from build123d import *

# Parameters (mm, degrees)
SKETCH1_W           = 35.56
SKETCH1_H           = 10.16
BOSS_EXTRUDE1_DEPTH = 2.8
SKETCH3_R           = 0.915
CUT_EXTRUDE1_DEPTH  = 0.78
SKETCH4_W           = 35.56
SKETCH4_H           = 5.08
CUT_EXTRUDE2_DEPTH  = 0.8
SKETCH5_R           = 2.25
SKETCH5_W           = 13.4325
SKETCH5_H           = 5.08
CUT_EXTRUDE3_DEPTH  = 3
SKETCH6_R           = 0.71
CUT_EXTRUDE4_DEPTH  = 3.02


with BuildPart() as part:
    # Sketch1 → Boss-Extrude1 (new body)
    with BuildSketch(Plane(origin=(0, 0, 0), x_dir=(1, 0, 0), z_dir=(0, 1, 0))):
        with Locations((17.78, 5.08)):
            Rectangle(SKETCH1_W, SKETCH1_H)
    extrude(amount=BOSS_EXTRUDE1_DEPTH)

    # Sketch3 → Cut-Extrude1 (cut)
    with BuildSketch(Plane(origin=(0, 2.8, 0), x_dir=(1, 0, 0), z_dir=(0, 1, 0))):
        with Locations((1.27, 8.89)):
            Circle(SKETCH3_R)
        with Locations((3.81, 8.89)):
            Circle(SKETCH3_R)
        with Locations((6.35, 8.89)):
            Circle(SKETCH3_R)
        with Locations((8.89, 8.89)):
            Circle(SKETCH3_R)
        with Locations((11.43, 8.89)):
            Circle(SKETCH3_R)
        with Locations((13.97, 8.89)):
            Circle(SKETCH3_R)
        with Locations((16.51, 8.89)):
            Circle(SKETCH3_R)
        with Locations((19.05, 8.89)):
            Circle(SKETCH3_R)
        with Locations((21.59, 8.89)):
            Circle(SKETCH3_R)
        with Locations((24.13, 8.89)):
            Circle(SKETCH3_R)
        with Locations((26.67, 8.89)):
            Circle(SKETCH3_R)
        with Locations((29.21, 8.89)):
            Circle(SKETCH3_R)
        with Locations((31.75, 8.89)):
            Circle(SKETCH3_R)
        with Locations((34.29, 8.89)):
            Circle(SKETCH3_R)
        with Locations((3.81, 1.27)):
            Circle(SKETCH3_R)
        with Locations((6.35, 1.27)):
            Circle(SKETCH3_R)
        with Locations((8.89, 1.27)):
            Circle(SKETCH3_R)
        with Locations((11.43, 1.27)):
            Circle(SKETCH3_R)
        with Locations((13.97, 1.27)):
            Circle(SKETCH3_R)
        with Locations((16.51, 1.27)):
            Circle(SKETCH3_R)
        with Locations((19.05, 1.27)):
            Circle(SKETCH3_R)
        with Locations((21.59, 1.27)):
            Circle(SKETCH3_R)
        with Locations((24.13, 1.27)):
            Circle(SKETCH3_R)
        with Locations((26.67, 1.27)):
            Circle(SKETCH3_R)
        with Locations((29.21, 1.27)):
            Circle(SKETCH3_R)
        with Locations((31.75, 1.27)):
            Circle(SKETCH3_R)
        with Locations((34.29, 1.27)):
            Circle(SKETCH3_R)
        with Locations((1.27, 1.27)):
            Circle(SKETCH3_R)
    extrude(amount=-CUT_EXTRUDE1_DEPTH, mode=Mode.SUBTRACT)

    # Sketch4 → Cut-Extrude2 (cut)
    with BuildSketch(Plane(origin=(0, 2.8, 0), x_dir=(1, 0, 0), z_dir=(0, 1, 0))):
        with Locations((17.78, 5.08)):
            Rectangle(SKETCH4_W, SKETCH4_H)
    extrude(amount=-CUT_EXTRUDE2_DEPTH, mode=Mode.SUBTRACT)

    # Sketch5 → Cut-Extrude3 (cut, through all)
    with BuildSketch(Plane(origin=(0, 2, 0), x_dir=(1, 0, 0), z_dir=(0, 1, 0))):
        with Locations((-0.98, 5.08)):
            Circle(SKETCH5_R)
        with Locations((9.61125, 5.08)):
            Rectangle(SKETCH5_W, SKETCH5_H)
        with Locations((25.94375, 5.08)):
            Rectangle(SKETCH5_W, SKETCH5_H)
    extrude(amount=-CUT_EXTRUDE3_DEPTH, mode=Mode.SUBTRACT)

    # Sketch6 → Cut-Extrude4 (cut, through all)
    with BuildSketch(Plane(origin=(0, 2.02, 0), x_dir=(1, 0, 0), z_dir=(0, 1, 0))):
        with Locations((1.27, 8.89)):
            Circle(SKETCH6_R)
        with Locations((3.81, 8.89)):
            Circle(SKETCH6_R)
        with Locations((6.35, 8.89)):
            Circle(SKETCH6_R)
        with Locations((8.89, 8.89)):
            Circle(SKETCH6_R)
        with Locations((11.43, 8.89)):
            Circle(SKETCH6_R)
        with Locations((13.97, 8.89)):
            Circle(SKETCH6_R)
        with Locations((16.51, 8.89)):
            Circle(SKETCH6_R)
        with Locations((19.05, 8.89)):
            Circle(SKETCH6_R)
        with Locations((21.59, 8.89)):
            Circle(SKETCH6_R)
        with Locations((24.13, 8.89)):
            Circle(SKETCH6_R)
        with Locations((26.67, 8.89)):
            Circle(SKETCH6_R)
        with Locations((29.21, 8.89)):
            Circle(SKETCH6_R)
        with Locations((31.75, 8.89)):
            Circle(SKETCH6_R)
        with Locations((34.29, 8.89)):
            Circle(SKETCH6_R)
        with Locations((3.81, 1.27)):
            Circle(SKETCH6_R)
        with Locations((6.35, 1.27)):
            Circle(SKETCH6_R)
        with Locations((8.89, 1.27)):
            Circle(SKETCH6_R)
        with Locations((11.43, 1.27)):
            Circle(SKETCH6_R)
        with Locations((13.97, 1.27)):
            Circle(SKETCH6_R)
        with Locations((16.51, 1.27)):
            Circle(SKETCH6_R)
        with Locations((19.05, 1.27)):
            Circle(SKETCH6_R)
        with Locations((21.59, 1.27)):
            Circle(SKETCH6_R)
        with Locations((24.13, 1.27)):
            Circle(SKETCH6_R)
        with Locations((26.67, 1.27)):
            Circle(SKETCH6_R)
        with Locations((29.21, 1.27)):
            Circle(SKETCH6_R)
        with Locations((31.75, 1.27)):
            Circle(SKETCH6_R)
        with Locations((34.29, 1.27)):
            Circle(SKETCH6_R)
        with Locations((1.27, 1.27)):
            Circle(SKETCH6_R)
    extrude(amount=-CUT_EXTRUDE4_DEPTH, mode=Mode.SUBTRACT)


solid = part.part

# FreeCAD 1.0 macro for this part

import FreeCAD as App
import Part
import Sketcher
from FreeCAD import Vector


def add_polygon(sketch, points):
    """Adds a closed chain of lines whose ends are joined by coincident constraints."""
    first, n = sketch.GeometryCount, len(points)
    for a, b in zip(points, points[1:] + points[:1]):
        sketch.addGeometry(Part.LineSegment(App.Vector(*a, 0), App.Vector(*b, 0)), False)
    for i in range(n):
        sketch.addConstraint(Sketcher.Constraint("Coincident", first + i, 2, first + (i + 1) % n, 1))

doc = App.newDocument("Part")
body = doc.addObject("PartDesign::Body", "Body")

# Sketch on XZ plane
sketch1 = body.newObject("Sketcher::SketchObject", "Sketch")
sketch1.AttachmentSupport = (doc.getObject("XZ_Plane"), [""])
sketch1.MapMode = "FlatFace"
add_polygon(sketch1, [(0, -10), (0, 0), (36, 0), (36, -10)])  # lines 0-3
sketch1.addConstraint([
    Sketcher.Constraint("Vertical", 0),
    Sketcher.Constraint("Horizontal", 1),
    Sketcher.Constraint("Vertical", 2),
    Sketcher.Constraint("Horizontal", 3),
    Sketcher.Constraint("Coincident", 0, 2, -1, 1),
    Sketcher.Constraint("DistanceX", 1, 1, 1, 2, 35.56),
    Sketcher.Constraint("DistanceY", 0, 1, 0, 2, 10.16),
])
pad1 = body.newObject("PartDesign::Pad", "Pad")
pad1.Profile = sketch1
pad1.Length = 2.8
pad1.Reversed = True

# Sketch on XZ plane
sketch2 = body.newObject("Sketcher::SketchObject", "Sketch001")
sketch2.AttachmentSupport = (doc.getObject("XZ_Plane"), [""])
sketch2.MapMode = "FlatFace"
sketch2.AttachmentOffset = App.Placement(Vector(0, 0, -2.8), App.Rotation())
sketch2.addGeometry([
    Part.Circle(Vector(1.3, -8.9, 0), Vector(0, 0, 1), 0.9),  # 0
    Part.Circle(Vector(3.8, -8.9, 0), Vector(0, 0, 1), 0.9),  # 1
    Part.Circle(Vector(6.3, -8.9, 0), Vector(0, 0, 1), 0.9),  # 2
    Part.Circle(Vector(8.9, -8.9, 0), Vector(0, 0, 1), 0.9),  # 3
    Part.Circle(Vector(11.4, -8.9, 0), Vector(0, 0, 1), 0.9),  # 4
    Part.Circle(Vector(14, -8.9, 0), Vector(0, 0, 1), 0.9),  # 5
    Part.Circle(Vector(16.5, -8.9, 0), Vector(0, 0, 1), 0.9),  # 6
    Part.Circle(Vector(19.1, -8.9, 0), Vector(0, 0, 1), 0.9),  # 7
    Part.Circle(Vector(21.6, -8.9, 0), Vector(0, 0, 1), 0.9),  # 8
    Part.Circle(Vector(24.1, -8.9, 0), Vector(0, 0, 1), 0.9),  # 9
    Part.Circle(Vector(26.7, -8.9, 0), Vector(0, 0, 1), 0.9),  # 10
    Part.Circle(Vector(29.2, -8.9, 0), Vector(0, 0, 1), 0.9),  # 11
    Part.Circle(Vector(31.8, -8.9, 0), Vector(0, 0, 1), 0.9),  # 12
    Part.Circle(Vector(34.3, -8.9, 0), Vector(0, 0, 1), 0.9),  # 13
    Part.Circle(Vector(3.8, -1.3, 0), Vector(0, 0, 1), 0.9),  # 14
    Part.Circle(Vector(6.3, -1.3, 0), Vector(0, 0, 1), 0.9),  # 15
    Part.Circle(Vector(8.9, -1.3, 0), Vector(0, 0, 1), 0.9),  # 16
    Part.Circle(Vector(11.4, -1.3, 0), Vector(0, 0, 1), 0.9),  # 17
    Part.Circle(Vector(14, -1.3, 0), Vector(0, 0, 1), 0.9),  # 18
    Part.Circle(Vector(16.5, -1.3, 0), Vector(0, 0, 1), 0.9),  # 19
    Part.Circle(Vector(19.1, -1.3, 0), Vector(0, 0, 1), 0.9),  # 20
    Part.Circle(Vector(21.6, -1.3, 0), Vector(0, 0, 1), 0.9),  # 21
    Part.Circle(Vector(24.1, -1.3, 0), Vector(0, 0, 1), 0.9),  # 22
    Part.Circle(Vector(26.7, -1.3, 0), Vector(0, 0, 1), 0.9),  # 23
    Part.Circle(Vector(29.2, -1.3, 0), Vector(0, 0, 1), 0.9),  # 24
    Part.Circle(Vector(31.8, -1.3, 0), Vector(0, 0, 1), 0.9),  # 25
    Part.Circle(Vector(34.3, -1.3, 0), Vector(0, 0, 1), 0.9),  # 26
    Part.Circle(Vector(1.3, -1.3, 0), Vector(0, 0, 1), 0.9),  # 27
], False)
sketch2.addConstraint([
    Sketcher.Constraint("Equal", 0, 1),
    Sketcher.Constraint("Equal", 1, 2),
    Sketcher.Constraint("Equal", 2, 3),
    Sketcher.Constraint("Equal", 3, 4),
    Sketcher.Constraint("Equal", 4, 5),
    Sketcher.Constraint("Equal", 5, 6),
    Sketcher.Constraint("Equal", 6, 7),
    Sketcher.Constraint("Equal", 7, 8),
    Sketcher.Constraint("Equal", 8, 9),
    Sketcher.Constraint("Equal", 9, 10),
    Sketcher.Constraint("Equal", 10, 11),
    Sketcher.Constraint("Equal", 11, 12),
    Sketcher.Constraint("Equal", 12, 13),
    Sketcher.Constraint("Equal", 13, 14),
    Sketcher.Constraint("Equal", 14, 15),
    Sketcher.Constraint("Equal", 15, 16),
    Sketcher.Constraint("Equal", 16, 17),
    Sketcher.Constraint("Equal", 17, 18),
    Sketcher.Constraint("Equal", 18, 19),
    Sketcher.Constraint("Equal", 19, 20),
    Sketcher.Constraint("Equal", 20, 21),
    Sketcher.Constraint("Equal", 21, 22),
    Sketcher.Constraint("Equal", 22, 23),
    Sketcher.Constraint("Equal", 23, 24),
    Sketcher.Constraint("Equal", 24, 25),
    Sketcher.Constraint("Equal", 25, 26),
    Sketcher.Constraint("Equal", 26, 27),
    Sketcher.Constraint("Horizontal", 0, 3, 1, 3),
    Sketcher.Constraint("Horizontal", 1, 3, 2, 3),
    Sketcher.Constraint("Horizontal", 2, 3, 3, 3),
    Sketcher.Constraint("Horizontal", 3, 3, 4, 3),
    Sketcher.Constraint("Horizontal", 4, 3, 5, 3),
    Sketcher.Constraint("Horizontal", 5, 3, 6, 3),
    Sketcher.Constraint("Horizontal", 6, 3, 7, 3),
    Sketcher.Constraint("Horizontal", 7, 3, 8, 3),
    Sketcher.Constraint("Horizontal", 8, 3, 9, 3),
    Sketcher.Constraint("Horizontal", 9, 3, 10, 3),
    Sketcher.Constraint("Horizontal", 10, 3, 11, 3),
    Sketcher.Constraint("Horizontal", 11, 3, 12, 3),
    Sketcher.Constraint("Horizontal", 12, 3, 13, 3),
    Sketcher.Constraint("Horizontal", 14, 3, 15, 3),
    Sketcher.Constraint("Horizontal", 15, 3, 16, 3),
    Sketcher.Constraint("Horizontal", 16, 3, 17, 3),
    Sketcher.Constraint("Horizontal", 17, 3, 18, 3),
    Sketcher.Constraint("Horizontal", 18, 3, 19, 3),
    Sketcher.Constraint("Horizontal", 19, 3, 20, 3),
    Sketcher.Constraint("Horizontal", 20, 3, 21, 3),
    Sketcher.Constraint("Horizontal", 21, 3, 22, 3),
    Sketcher.Constraint("Horizontal", 22, 3, 23, 3),
    Sketcher.Constraint("Horizontal", 23, 3, 24, 3),
    Sketcher.Constraint("Horizontal", 24, 3, 25, 3),
    Sketcher.Constraint("Horizontal", 25, 3, 26, 3),
    Sketcher.Constraint("Horizontal", 26, 3, 27, 3),
    Sketcher.Constraint("Vertical", 1, 3, 14, 3),
    Sketcher.Constraint("Vertical", 2, 3, 15, 3),
    Sketcher.Constraint("Vertical", 3, 3, 16, 3),
    Sketcher.Constraint("Vertical", 4, 3, 17, 3),
    Sketcher.Constraint("Vertical", 5, 3, 18, 3),
    Sketcher.Constraint("Vertical", 6, 3, 19, 3),
    Sketcher.Constraint("Vertical", 7, 3, 20, 3),
    Sketcher.Constraint("Vertical", 8, 3, 21, 3),
    Sketcher.Constraint("Vertical", 9, 3, 22, 3),
    Sketcher.Constraint("Vertical", 10, 3, 23, 3),
    Sketcher.Constraint("Vertical", 11, 3, 24, 3),
    Sketcher.Constraint("Vertical", 12, 3, 25, 3),
    Sketcher.Constraint("Vertical", 13, 3, 26, 3),
    Sketcher.Constraint("Vertical", 0, 3, 27, 3),
    Sketcher.Constraint("Diameter", 0, 1.83),
    Sketcher.Constraint("DistanceX", 0, 3, 5, 3, 12.7),
    Sketcher.Constraint("DistanceX", 1, 3, 6, 3, 12.7),
    Sketcher.Constraint("DistanceX", 2, 3, 7, 3, 12.7),
    Sketcher.Constraint("DistanceX", 3, 3, 8, 3, 12.7),
    Sketcher.Constraint("DistanceX", 4, 3, 9, 3, 12.7),
    Sketcher.Constraint("DistanceX", 5, 3, 10, 3, 12.7),
    Sketcher.Constraint("DistanceX", 6, 3, 11, 3, 12.7),
    Sketcher.Constraint("DistanceX", 7, 3, 12, 3, 12.7),
    Sketcher.Constraint("DistanceX", 8, 3, 13, 3, 12.7),
    Sketcher.Constraint("DistanceX", -1, 1, 0, 3, 1.27),
    Sketcher.Constraint("DistanceY", 0, 3, -1, 1, 8.89),
    Sketcher.Constraint("DistanceX", -1, 1, 1, 3, 3.81),
    Sketcher.Constraint("DistanceX", -1, 1, 2, 3, 6.35),
    Sketcher.Constraint("DistanceX", -1, 1, 3, 3, 8.89),
    Sketcher.Constraint("DistanceX", -1, 1, 4, 3, 11.43),
    Sketcher.Constraint("DistanceY", 14, 3, -1, 1, 1.27),
])
pocket1 = body.newObject("PartDesign::Pocket", "Pocket")
pocket1.Profile = sketch2
pocket1.Length = 0.78
pocket1.Reversed = True

# Sketch on XZ plane
sketch3 = body.newObject("Sketcher::SketchObject", "Sketch002")
sketch3.AttachmentSupport = (doc.getObject("XZ_Plane"), [""])
sketch3.MapMode = "FlatFace"
sketch3.AttachmentOffset = App.Placement(Vector(0, 0, -2.8), App.Rotation())
add_polygon(sketch3, [(0, -8), (0, -3), (36, -3), (36, -8)])  # lines 0-3
sketch3.addConstraint([
    Sketcher.Constraint("Vertical", 0),
    Sketcher.Constraint("Horizontal", 1),
    Sketcher.Constraint("Vertical", 2),
    Sketcher.Constraint("Horizontal", 3),
    Sketcher.Constraint("PointOnObject", 0, 2, -2),
    Sketcher.Constraint("DistanceX", 1, 1, 1, 2, 35.56),
    Sketcher.Constraint("DistanceY", 0, 1, 0, 2, 5.08),
    Sketcher.Constraint("DistanceY", 0, 2, -1, 1, 2.54),
])
pocket2 = body.newObject("PartDesign::Pocket", "Pocket001")
pocket2.Profile = sketch3
pocket2.Length = 0.8
pocket2.Reversed = True

# Sketch on XZ plane
sketch4 = body.newObject("Sketcher::SketchObject", "Sketch003")
sketch4.AttachmentSupport = (doc.getObject("XZ_Plane"), [""])
sketch4.MapMode = "FlatFace"
sketch4.AttachmentOffset = App.Placement(Vector(0, 0, -2), App.Rotation())
sketch4.addGeometry(Part.Circle(Vector(-1, -5.1, 0), Vector(0, 0, 1), 2.2), False)  # 0
add_polygon(sketch4, [(2.9, -7.6), (2.9, -2.5), (16.3, -2.5), (16.3, -7.6)])  # lines 1-4
add_polygon(sketch4, [(19.2, -7.6), (19.2, -2.5), (32.7, -2.5), (32.7, -7.6)])  # lines 5-8
sketch4.addConstraint([
    Sketcher.Constraint("Vertical", 1),
    Sketcher.Constraint("Horizontal", 2),
    Sketcher.Constraint("Vertical", 3),
    Sketcher.Constraint("Horizontal", 4),
    Sketcher.Constraint("Vertical", 5),
    Sketcher.Constraint("Horizontal", 6),
    Sketcher.Constraint("Vertical", 7),
    Sketcher.Constraint("Horizontal", 8),
    Sketcher.Constraint("Horizontal", 2, 2, 5, 2),
    Sketcher.Constraint("Horizontal", 4, 2, 7, 2),
    Sketcher.Constraint("Equal", 4, 6),
    Sketcher.Constraint("Diameter", 0, 4.5),
    Sketcher.Constraint("DistanceY", 1, 1, 1, 2, 5.08),
    Sketcher.Constraint("DistanceX", 2, 2, 5, 2, 2.9),
    Sketcher.Constraint("DistanceX", 0, 3, -1, 1, 0.98),
    Sketcher.Constraint("DistanceY", 0, 3, -1, 1, 5.08),
    Sketcher.Constraint("DistanceY", 1, 2, -1, 1, 2.54),
    Sketcher.Constraint("DistanceX", -1, 1, 6, 2, 32.66),
    Sketcher.Constraint("DistanceX", 2, 1, 2, 2, 13.4325),
])
pocket3 = body.newObject("PartDesign::Pocket", "Pocket002")
pocket3.Profile = sketch4
pocket3.Type = "ThroughAll"
pocket3.Reversed = True

# Sketch on XZ plane
sketch5 = body.newObject("Sketcher::SketchObject", "Sketch004")
sketch5.AttachmentSupport = (doc.getObject("XZ_Plane"), [""])
sketch5.MapMode = "FlatFace"
sketch5.AttachmentOffset = App.Placement(Vector(0, 0, -2.02), App.Rotation())
sketch5.addGeometry([
    Part.Circle(Vector(1.3, -8.9, 0), Vector(0, 0, 1), 0.7),  # 0
    Part.Circle(Vector(3.8, -8.9, 0), Vector(0, 0, 1), 0.7),  # 1
    Part.Circle(Vector(6.3, -8.9, 0), Vector(0, 0, 1), 0.7),  # 2
    Part.Circle(Vector(8.9, -8.9, 0), Vector(0, 0, 1), 0.7),  # 3
    Part.Circle(Vector(11.4, -8.9, 0), Vector(0, 0, 1), 0.7),  # 4
    Part.Circle(Vector(14, -8.9, 0), Vector(0, 0, 1), 0.7),  # 5
    Part.Circle(Vector(16.5, -8.9, 0), Vector(0, 0, 1), 0.7),  # 6
    Part.Circle(Vector(19.1, -8.9, 0), Vector(0, 0, 1), 0.7),  # 7
    Part.Circle(Vector(21.6, -8.9, 0), Vector(0, 0, 1), 0.7),  # 8
    Part.Circle(Vector(24.1, -8.9, 0), Vector(0, 0, 1), 0.7),  # 9
    Part.Circle(Vector(26.7, -8.9, 0), Vector(0, 0, 1), 0.7),  # 10
    Part.Circle(Vector(29.2, -8.9, 0), Vector(0, 0, 1), 0.7),  # 11
    Part.Circle(Vector(31.8, -8.9, 0), Vector(0, 0, 1), 0.7),  # 12
    Part.Circle(Vector(34.3, -8.9, 0), Vector(0, 0, 1), 0.7),  # 13
    Part.Circle(Vector(3.8, -1.3, 0), Vector(0, 0, 1), 0.7),  # 14
    Part.Circle(Vector(6.3, -1.3, 0), Vector(0, 0, 1), 0.7),  # 15
    Part.Circle(Vector(8.9, -1.3, 0), Vector(0, 0, 1), 0.7),  # 16
    Part.Circle(Vector(11.4, -1.3, 0), Vector(0, 0, 1), 0.7),  # 17
    Part.Circle(Vector(14, -1.3, 0), Vector(0, 0, 1), 0.7),  # 18
    Part.Circle(Vector(16.5, -1.3, 0), Vector(0, 0, 1), 0.7),  # 19
    Part.Circle(Vector(19.1, -1.3, 0), Vector(0, 0, 1), 0.7),  # 20
    Part.Circle(Vector(21.6, -1.3, 0), Vector(0, 0, 1), 0.7),  # 21
    Part.Circle(Vector(24.1, -1.3, 0), Vector(0, 0, 1), 0.7),  # 22
    Part.Circle(Vector(26.7, -1.3, 0), Vector(0, 0, 1), 0.7),  # 23
    Part.Circle(Vector(29.2, -1.3, 0), Vector(0, 0, 1), 0.7),  # 24
    Part.Circle(Vector(31.8, -1.3, 0), Vector(0, 0, 1), 0.7),  # 25
    Part.Circle(Vector(34.3, -1.3, 0), Vector(0, 0, 1), 0.7),  # 26
    Part.Circle(Vector(1.3, -1.3, 0), Vector(0, 0, 1), 0.7),  # 27
], False)
sketch5.addConstraint([
    Sketcher.Constraint("Equal", 0, 1),
    Sketcher.Constraint("Equal", 1, 2),
    Sketcher.Constraint("Equal", 2, 3),
    Sketcher.Constraint("Equal", 3, 4),
    Sketcher.Constraint("Equal", 4, 5),
    Sketcher.Constraint("Equal", 5, 6),
    Sketcher.Constraint("Equal", 6, 7),
    Sketcher.Constraint("Equal", 7, 8),
    Sketcher.Constraint("Equal", 8, 9),
    Sketcher.Constraint("Equal", 9, 10),
    Sketcher.Constraint("Equal", 10, 11),
    Sketcher.Constraint("Equal", 11, 12),
    Sketcher.Constraint("Equal", 12, 13),
    Sketcher.Constraint("Equal", 13, 14),
    Sketcher.Constraint("Equal", 14, 15),
    Sketcher.Constraint("Equal", 15, 16),
    Sketcher.Constraint("Equal", 16, 17),
    Sketcher.Constraint("Equal", 17, 18),
    Sketcher.Constraint("Equal", 18, 19),
    Sketcher.Constraint("Equal", 19, 20),
    Sketcher.Constraint("Equal", 20, 21),
    Sketcher.Constraint("Equal", 21, 22),
    Sketcher.Constraint("Equal", 22, 23),
    Sketcher.Constraint("Equal", 23, 24),
    Sketcher.Constraint("Equal", 24, 25),
    Sketcher.Constraint("Equal", 25, 26),
    Sketcher.Constraint("Equal", 26, 27),
    Sketcher.Constraint("Horizontal", 0, 3, 1, 3),
    Sketcher.Constraint("Horizontal", 1, 3, 2, 3),
    Sketcher.Constraint("Horizontal", 2, 3, 3, 3),
    Sketcher.Constraint("Horizontal", 3, 3, 4, 3),
    Sketcher.Constraint("Horizontal", 4, 3, 5, 3),
    Sketcher.Constraint("Horizontal", 5, 3, 6, 3),
    Sketcher.Constraint("Horizontal", 6, 3, 7, 3),
    Sketcher.Constraint("Horizontal", 7, 3, 8, 3),
    Sketcher.Constraint("Horizontal", 8, 3, 9, 3),
    Sketcher.Constraint("Horizontal", 9, 3, 10, 3),
    Sketcher.Constraint("Horizontal", 10, 3, 11, 3),
    Sketcher.Constraint("Horizontal", 11, 3, 12, 3),
    Sketcher.Constraint("Horizontal", 12, 3, 13, 3),
    Sketcher.Constraint("Horizontal", 14, 3, 15, 3),
    Sketcher.Constraint("Horizontal", 15, 3, 16, 3),
    Sketcher.Constraint("Horizontal", 16, 3, 17, 3),
    Sketcher.Constraint("Horizontal", 17, 3, 18, 3),
    Sketcher.Constraint("Horizontal", 18, 3, 19, 3),
    Sketcher.Constraint("Horizontal", 19, 3, 20, 3),
    Sketcher.Constraint("Horizontal", 20, 3, 21, 3),
    Sketcher.Constraint("Horizontal", 21, 3, 22, 3),
    Sketcher.Constraint("Horizontal", 22, 3, 23, 3),
    Sketcher.Constraint("Horizontal", 23, 3, 24, 3),
    Sketcher.Constraint("Horizontal", 24, 3, 25, 3),
    Sketcher.Constraint("Horizontal", 25, 3, 26, 3),
    Sketcher.Constraint("Horizontal", 26, 3, 27, 3),
    Sketcher.Constraint("Vertical", 1, 3, 14, 3),
    Sketcher.Constraint("Vertical", 2, 3, 15, 3),
    Sketcher.Constraint("Vertical", 3, 3, 16, 3),
    Sketcher.Constraint("Vertical", 4, 3, 17, 3),
    Sketcher.Constraint("Vertical", 5, 3, 18, 3),
    Sketcher.Constraint("Vertical", 6, 3, 19, 3),
    Sketcher.Constraint("Vertical", 7, 3, 20, 3),
    Sketcher.Constraint("Vertical", 8, 3, 21, 3),
    Sketcher.Constraint("Vertical", 9, 3, 22, 3),
    Sketcher.Constraint("Vertical", 10, 3, 23, 3),
    Sketcher.Constraint("Vertical", 11, 3, 24, 3),
    Sketcher.Constraint("Vertical", 12, 3, 25, 3),
    Sketcher.Constraint("Vertical", 13, 3, 26, 3),
    Sketcher.Constraint("Vertical", 0, 3, 27, 3),
    Sketcher.Constraint("Diameter", 0, 1.42),
    Sketcher.Constraint("DistanceX", 0, 3, 5, 3, 12.7),
    Sketcher.Constraint("DistanceX", 1, 3, 6, 3, 12.7),
    Sketcher.Constraint("DistanceX", 2, 3, 7, 3, 12.7),
    Sketcher.Constraint("DistanceX", 3, 3, 8, 3, 12.7),
    Sketcher.Constraint("DistanceX", 4, 3, 9, 3, 12.7),
    Sketcher.Constraint("DistanceX", 5, 3, 10, 3, 12.7),
    Sketcher.Constraint("DistanceX", 6, 3, 11, 3, 12.7),
    Sketcher.Constraint("DistanceX", 7, 3, 12, 3, 12.7),
    Sketcher.Constraint("DistanceX", 8, 3, 13, 3, 12.7),
    Sketcher.Constraint("DistanceX", -1, 1, 0, 3, 1.27),
    Sketcher.Constraint("DistanceY", 0, 3, -1, 1, 8.89),
    Sketcher.Constraint("DistanceX", -1, 1, 1, 3, 3.81),
    Sketcher.Constraint("DistanceX", -1, 1, 2, 3, 6.35),
    Sketcher.Constraint("DistanceX", -1, 1, 3, 3, 8.89),
    Sketcher.Constraint("DistanceX", -1, 1, 4, 3, 11.43),
    Sketcher.Constraint("DistanceY", 14, 3, -1, 1, 1.27),
])
pocket4 = body.newObject("PartDesign::Pocket", "Pocket003")
pocket4.Profile = sketch5
pocket4.Type = "ThroughAll"
pocket4.Reversed = True

doc.recompute()
